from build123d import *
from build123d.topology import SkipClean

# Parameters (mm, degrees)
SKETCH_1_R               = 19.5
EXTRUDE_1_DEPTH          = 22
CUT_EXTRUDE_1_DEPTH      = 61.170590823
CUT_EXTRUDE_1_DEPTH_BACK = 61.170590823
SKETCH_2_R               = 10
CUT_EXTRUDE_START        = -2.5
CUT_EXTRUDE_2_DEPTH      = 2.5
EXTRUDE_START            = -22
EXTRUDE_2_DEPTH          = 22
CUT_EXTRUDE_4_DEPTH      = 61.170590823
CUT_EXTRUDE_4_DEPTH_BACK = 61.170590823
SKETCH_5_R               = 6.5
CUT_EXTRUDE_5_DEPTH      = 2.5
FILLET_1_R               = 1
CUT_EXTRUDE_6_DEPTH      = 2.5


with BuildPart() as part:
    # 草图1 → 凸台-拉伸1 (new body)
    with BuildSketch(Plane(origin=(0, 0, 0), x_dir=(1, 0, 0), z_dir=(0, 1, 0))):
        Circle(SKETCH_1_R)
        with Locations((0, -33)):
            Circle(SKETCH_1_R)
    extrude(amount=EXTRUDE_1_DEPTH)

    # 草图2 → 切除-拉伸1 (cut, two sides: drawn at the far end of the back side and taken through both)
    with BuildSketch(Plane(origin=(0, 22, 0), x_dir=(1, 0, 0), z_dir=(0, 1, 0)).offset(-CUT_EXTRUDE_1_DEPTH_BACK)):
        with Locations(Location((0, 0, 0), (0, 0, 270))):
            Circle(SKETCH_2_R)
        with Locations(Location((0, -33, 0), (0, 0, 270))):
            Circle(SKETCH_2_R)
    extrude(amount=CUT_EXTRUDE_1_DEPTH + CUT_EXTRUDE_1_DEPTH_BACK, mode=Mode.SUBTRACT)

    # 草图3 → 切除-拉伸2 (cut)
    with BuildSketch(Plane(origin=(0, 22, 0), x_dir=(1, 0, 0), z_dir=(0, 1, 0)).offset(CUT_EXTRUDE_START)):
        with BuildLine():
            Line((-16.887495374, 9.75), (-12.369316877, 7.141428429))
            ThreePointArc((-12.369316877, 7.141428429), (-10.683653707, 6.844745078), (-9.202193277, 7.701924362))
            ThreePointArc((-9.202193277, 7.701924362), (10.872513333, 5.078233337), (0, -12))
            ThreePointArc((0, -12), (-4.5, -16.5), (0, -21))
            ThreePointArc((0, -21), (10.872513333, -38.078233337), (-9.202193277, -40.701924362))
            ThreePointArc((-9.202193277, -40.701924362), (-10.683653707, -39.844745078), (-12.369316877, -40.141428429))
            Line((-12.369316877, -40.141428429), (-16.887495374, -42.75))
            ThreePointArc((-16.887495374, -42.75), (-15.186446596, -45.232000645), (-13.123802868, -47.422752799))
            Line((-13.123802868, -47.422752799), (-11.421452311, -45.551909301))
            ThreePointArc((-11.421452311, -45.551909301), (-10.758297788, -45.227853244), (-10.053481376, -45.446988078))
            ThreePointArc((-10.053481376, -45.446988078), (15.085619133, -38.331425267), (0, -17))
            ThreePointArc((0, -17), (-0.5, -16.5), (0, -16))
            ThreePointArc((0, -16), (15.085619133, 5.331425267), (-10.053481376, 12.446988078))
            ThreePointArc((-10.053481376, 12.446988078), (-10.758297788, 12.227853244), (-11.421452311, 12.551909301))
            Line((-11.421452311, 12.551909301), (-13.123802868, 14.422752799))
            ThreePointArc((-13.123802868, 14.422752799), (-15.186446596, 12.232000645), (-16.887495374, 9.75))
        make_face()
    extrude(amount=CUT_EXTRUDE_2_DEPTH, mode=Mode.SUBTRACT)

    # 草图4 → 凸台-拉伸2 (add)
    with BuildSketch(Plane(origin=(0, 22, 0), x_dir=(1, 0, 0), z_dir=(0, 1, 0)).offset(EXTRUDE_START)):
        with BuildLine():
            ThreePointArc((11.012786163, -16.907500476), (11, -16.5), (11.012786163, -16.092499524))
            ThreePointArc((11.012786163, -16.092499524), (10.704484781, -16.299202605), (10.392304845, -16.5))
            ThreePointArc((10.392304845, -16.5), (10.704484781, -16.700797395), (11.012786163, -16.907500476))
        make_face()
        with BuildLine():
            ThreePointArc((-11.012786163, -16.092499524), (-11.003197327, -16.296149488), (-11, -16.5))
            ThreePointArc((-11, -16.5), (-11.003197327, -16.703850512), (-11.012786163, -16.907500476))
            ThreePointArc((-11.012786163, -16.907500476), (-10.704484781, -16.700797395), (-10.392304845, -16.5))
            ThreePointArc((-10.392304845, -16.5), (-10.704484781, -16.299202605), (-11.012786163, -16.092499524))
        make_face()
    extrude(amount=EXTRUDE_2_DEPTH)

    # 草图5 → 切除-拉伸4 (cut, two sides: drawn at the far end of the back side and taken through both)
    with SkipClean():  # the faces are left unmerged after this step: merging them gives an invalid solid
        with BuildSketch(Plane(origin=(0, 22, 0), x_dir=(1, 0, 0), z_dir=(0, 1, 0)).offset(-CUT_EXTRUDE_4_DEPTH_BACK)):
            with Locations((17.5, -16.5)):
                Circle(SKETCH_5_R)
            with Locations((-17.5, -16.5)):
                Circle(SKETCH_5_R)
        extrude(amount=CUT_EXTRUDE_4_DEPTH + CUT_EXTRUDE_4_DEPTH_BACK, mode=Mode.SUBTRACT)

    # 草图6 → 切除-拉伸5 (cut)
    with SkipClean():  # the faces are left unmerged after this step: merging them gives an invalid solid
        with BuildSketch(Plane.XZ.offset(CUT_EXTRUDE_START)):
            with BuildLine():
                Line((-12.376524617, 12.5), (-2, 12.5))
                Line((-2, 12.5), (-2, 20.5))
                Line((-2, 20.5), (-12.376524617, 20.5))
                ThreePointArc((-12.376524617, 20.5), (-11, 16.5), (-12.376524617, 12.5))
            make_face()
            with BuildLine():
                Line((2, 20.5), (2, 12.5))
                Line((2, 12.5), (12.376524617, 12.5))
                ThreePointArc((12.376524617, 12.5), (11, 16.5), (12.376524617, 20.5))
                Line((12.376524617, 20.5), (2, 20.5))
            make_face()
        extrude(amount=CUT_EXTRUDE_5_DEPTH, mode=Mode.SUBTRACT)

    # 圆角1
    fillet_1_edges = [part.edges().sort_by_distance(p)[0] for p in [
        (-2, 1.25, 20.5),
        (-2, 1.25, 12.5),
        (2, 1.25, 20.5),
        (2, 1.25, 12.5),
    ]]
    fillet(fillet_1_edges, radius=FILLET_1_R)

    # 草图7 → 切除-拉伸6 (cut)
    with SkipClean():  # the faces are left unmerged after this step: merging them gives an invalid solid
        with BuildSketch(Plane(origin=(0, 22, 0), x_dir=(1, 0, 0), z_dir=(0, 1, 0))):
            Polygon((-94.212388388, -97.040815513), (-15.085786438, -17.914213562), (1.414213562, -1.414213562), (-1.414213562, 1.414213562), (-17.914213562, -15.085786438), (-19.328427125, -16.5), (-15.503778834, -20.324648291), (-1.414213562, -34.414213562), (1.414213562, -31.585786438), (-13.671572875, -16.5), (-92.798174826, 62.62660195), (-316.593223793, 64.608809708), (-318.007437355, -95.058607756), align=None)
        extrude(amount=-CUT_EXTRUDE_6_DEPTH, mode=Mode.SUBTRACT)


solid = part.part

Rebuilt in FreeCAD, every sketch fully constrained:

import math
import FreeCAD as App
import Part
import Sketcher
Q = App.Units.Quantity


def edges_at(feature, points):
    """Names of the edges that pass closest to the given points."""
    edges = feature.Shape.Edges
    near = lambda p: min(range(len(edges)), key=lambda i: edges[i].distToShape(Part.Vertex(*p))[0])
    return sorted({f"Edge{near(p) + 1}" for p in points})

doc = App.newDocument("Part")
body = doc.addObject("PartDesign::Body", "Body")

# Sketch on XZ plane
sketch1 = body.newObject("Sketcher::SketchObject", "Sketch")
sketch1.AttachmentSupport = (doc.getObject("XZ_Plane"), [""])
sketch1.MapMode = "FlatFace"
sketch1.addGeometry([
    Part.ArcOfCircle(Part.Circle(App.Vector(0, 0, 0), App.Vector(0, 0, 1), 20), math.radians(122), math.radians(418)),
    Part.ArcOfCircle(Part.Circle(App.Vector(0, 33, 0), App.Vector(0, 0, 1), 20), math.radians(-58), math.radians(238)),
], False)
sketch1.addConstraint([
    Sketcher.Constraint("Coincident", 0, 1, 1, 2),
    Sketcher.Constraint("Coincident", 1, 1, 0, 2),
    Sketcher.Constraint("Coincident", 0, 3, -1, 1),
    Sketcher.Constraint("Equal", 0, 1),
    Sketcher.Constraint("PointOnObject", 1, 3, -2),
    Sketcher.Constraint("Radius", 0, 19.5),
    Sketcher.Constraint("DistanceY", -1, 1, 1, 3, 33.0),
])
pad1 = body.newObject("PartDesign::Pad", "Pad")
pad1.Profile = sketch1
pad1.Length = 22
pad1.Reversed = True

# Sketch on XZ plane
sketch2 = body.newObject("Sketcher::SketchObject", "Sketch001")
sketch2.AttachmentSupport = (doc.getObject("XZ_Plane"), [""])
sketch2.MapMode = "FlatFace"
sketch2.AttachmentOffset = App.Placement(App.Vector(0, 0, -22), App.Rotation())
sketch2.addGeometry([
    Part.Circle(App.Vector(0, 0, 0), App.Vector(0, 0, 1), 10),
    Part.Circle(App.Vector(0, 33, 0), App.Vector(0, 0, 1), 10),
], False)
sketch2.addConstraint([
    Sketcher.Constraint("Coincident", 0, 3, -1, 1),
    Sketcher.Constraint("Equal", 0, 1),
    Sketcher.Constraint("PointOnObject", 1, 3, -2),
    Sketcher.Constraint("Diameter", 0, 20.0),
    Sketcher.Constraint("DistanceY", -1, 1, 1, 3, 33.0),
])
pocket1 = body.newObject("PartDesign::Pocket", "Pocket")
pocket1.Profile = sketch2
pocket1.Type = "ThroughAll"
pocket1.Midplane = True

# Sketch on XZ plane
sketch3 = body.newObject("Sketcher::SketchObject", "Sketch002")
sketch3.AttachmentSupport = (doc.getObject("XZ_Plane"), [""])
sketch3.MapMode = "FlatFace"
sketch3.AttachmentOffset = App.Placement(App.Vector(0, 0, -19.5), App.Rotation())
sketch3.addGeometry([
    Part.LineSegment(App.Vector(-16.9, -9.8, 0), App.Vector(-12.4, -7.1, 0)),  # 0
    Part.ArcOfCircle(Part.Circle(App.Vector(-11.1, -9.3, 0), App.Vector(0, 0, 1), 2.5), math.radians(40), math.radians(120)),  # 1
    Part.ArcOfCircle(Part.Circle(App.Vector(0, 0, 0), App.Vector(0, 0, 1), 12), math.radians(-140), math.radians(90)),  # 2
    Part.ArcOfCircle(Part.Circle(App.Vector(0, 16.5, 0), App.Vector(0, 0, 1), 4.5), math.radians(90), math.radians(270)),  # 3
    Part.ArcOfCircle(Part.Circle(App.Vector(0, 33, 0), App.Vector(0, 0, 1), 12), math.radians(-90), math.radians(140)),  # 4
    Part.ArcOfCircle(Part.Circle(App.Vector(-11.1, 42.3, 0), App.Vector(0, 0, 1), 2.5), math.radians(-120), math.radians(-40)),  # 5
    Part.LineSegment(App.Vector(-12.4, 40.1, 0), App.Vector(-16.9, 42.8, 0)),  # 6
    Part.ArcOfCircle(Part.Circle(App.Vector(0, 33, 0), App.Vector(0, 0, 1), 19.5), math.radians(132.3), math.radians(150)),  # 7
    Part.LineSegment(App.Vector(-13.1, 47.4, 0), App.Vector(-11.4, 45.6, 0)),  # 8
    Part.ArcOfCircle(Part.Circle(App.Vector(-10.7, 46.2, 0), App.Vector(0, 0, 1), 1), math.radians(-138), math.radians(-51)),  # 9
    Part.ArcOfCircle(Part.Circle(App.Vector(0, 33, 0), App.Vector(0, 0, 1), 16), math.radians(-90), math.radians(129)),  # 10
    Part.ArcOfCircle(Part.Circle(App.Vector(0, 16.5, 0), App.Vector(0, 0, 1), 0.5), math.radians(90), math.radians(270)),  # 11
    Part.ArcOfCircle(Part.Circle(App.Vector(0, 0, 0), App.Vector(0, 0, 1), 16), math.radians(-129), math.radians(90)),  # 12
    Part.ArcOfCircle(Part.Circle(App.Vector(-10.7, -13.2, 0), App.Vector(0, 0, 1), 1), math.radians(51), math.radians(138)),  # 13
    Part.LineSegment(App.Vector(-11.4, -12.6, 0), App.Vector(-13.1, -14.4, 0)),  # 14
    Part.ArcOfCircle(Part.Circle(App.Vector(0, 0, 0), App.Vector(0, 0, 1), 19.5), math.radians(-150), math.radians(-132.3)),  # 15
], False)
sketch3.addConstraint([
    Sketcher.Constraint("Tangent", 0, 2, 1, 2),
    Sketcher.Constraint("Tangent", 1, 1, 2, 1),
    Sketcher.Constraint("Tangent", 2, 2, 3, 2),
    Sketcher.Constraint("Tangent", 3, 1, 4, 1),
    Sketcher.Constraint("Tangent", 4, 2, 5, 2),
    Sketcher.Constraint("Tangent", 5, 1, 6, 1),
    Sketcher.Constraint("Coincident", 6, 2, 7, 2),
    Sketcher.Constraint("Coincident", 7, 1, 8, 1),
    Sketcher.Constraint("Tangent", 8, 2, 9, 1),
    Sketcher.Constraint("Tangent", 9, 2, 10, 2),
    Sketcher.Constraint("Tangent", 10, 1, 11, 1),
    Sketcher.Constraint("Tangent", 11, 2, 12, 2),
    Sketcher.Constraint("Tangent", 12, 1, 13, 1),
    Sketcher.Constraint("Tangent", 13, 2, 14, 1),
    Sketcher.Constraint("Coincident", 14, 2, 15, 2),
    Sketcher.Constraint("Coincident", 15, 1, 0, 1),
    Sketcher.Constraint("Coincident", 2, 3, -1, 1),
    Sketcher.Constraint("Coincident", 12, 3, -1, 1),
    Sketcher.Constraint("Coincident", 15, 3, -1, 1),
    Sketcher.Constraint("Coincident", 7, 3, 4, 3),
    Sketcher.Constraint("Coincident", 10, 3, 4, 3),
    Sketcher.Constraint("Coincident", 11, 3, 3, 3),
    Sketcher.Constraint("Equal", 2, 4),
    Sketcher.Constraint("Equal", 1, 5),
    Sketcher.Constraint("Equal", 9, 13),
    Sketcher.Constraint("Equal", 7, 15),
    Sketcher.Constraint("PointOnObject", 3, 3, -2),
    Sketcher.Constraint("PointOnObject", 4, 3, -2),
    Sketcher.Constraint("Vertical", 1, 3, 5, 3),
    Sketcher.Constraint("Vertical", 9, 3, 13, 3),
    Sketcher.Constraint("Vertical", 0, 2, 5, 1),
    Sketcher.Constraint("Vertical", 8, 2, 13, 2),
    Sketcher.Constraint("Radius", 2, 12.0),
    Sketcher.Constraint("Radius", 9, 1.0),
    Sketcher.Constraint("Radius", 10, 16.0),
    Sketcher.Constraint("Radius", 1, 2.5),
    Sketcher.Constraint("Radius", 3, 4.5),
    Sketcher.Constraint("Radius", 7, 19.5),
    Sketcher.Constraint("Angle", 0, Q("30 deg")),
    Sketcher.Constraint("DistanceY", -1, 1, 6, 2, 42.75),
    Sketcher.Constraint("DistanceY", 13, 3, 1, 1, 5.523),
    Sketcher.Constraint("DistanceY", -1, 1, 8, 2, 45.551909),
])
pocket2 = body.newObject("PartDesign::Pocket", "Pocket001")
pocket2.Profile = sketch3
pocket2.Length = 2.5

# Sketch on XZ plane
sketch4 = body.newObject("Sketcher::SketchObject", "Sketch003")
sketch4.AttachmentSupport = (doc.getObject("XZ_Plane"), [""])
sketch4.MapMode = "FlatFace"
sketch4.addGeometry([
    Part.ArcOfCircle(Part.Circle(App.Vector(17.5, 16.5, 0), App.Vector(0, 0, 1), 6.5), math.radians(176.41), math.radians(183.59)),  # 0
    Part.ArcOfCircle(Part.Circle(App.Vector(0, 0, 0), App.Vector(0, 0, 1), 19.5), math.radians(55.61), math.radians(57.8)),  # 1
    Part.ArcOfCircle(Part.Circle(App.Vector(0, 33, 0), App.Vector(0, 0, 1), 19.5), math.radians(-57.8), math.radians(-55.61)),  # 2
    Part.ArcOfCircle(Part.Circle(App.Vector(-17.5, 16.5, 0), App.Vector(0, 0, 1), 6.5), math.radians(-3.59), math.radians(0)),  # 3
    Part.ArcOfCircle(Part.Circle(App.Vector(-17.5, 16.5, 0), App.Vector(0, 0, 1), 6.5), math.radians(0), math.radians(3.59)),  # 4
    Part.ArcOfCircle(Part.Circle(App.Vector(0, 33, 0), App.Vector(0, 0, 1), 19.5), math.radians(-124.39), math.radians(-122.2)),  # 5
    Part.ArcOfCircle(Part.Circle(App.Vector(0, 0, 0), App.Vector(0, 0, 1), 19.5), math.radians(122.2), math.radians(124.39)),  # 6
], False)
sketch4.addConstraint([
    Sketcher.Constraint("Coincident", 0, 2, 1, 1),
    Sketcher.Constraint("Coincident", 1, 2, 2, 1),
    Sketcher.Constraint("Coincident", 2, 2, 0, 1),
    Sketcher.Constraint("Tangent", 3, 2, 4, 1),
    Sketcher.Constraint("Coincident", 4, 2, 5, 1),
    Sketcher.Constraint("Coincident", 5, 2, 6, 1),
    Sketcher.Constraint("Coincident", 6, 2, 3, 1),
    Sketcher.Constraint("Coincident", 1, 3, -1, 1),
    Sketcher.Constraint("Coincident", 6, 3, -1, 1),
    Sketcher.Constraint("Coincident", 5, 3, 2, 3),
    Sketcher.Constraint("Equal", 1, 2),
    Sketcher.Constraint("Equal", 0, 3),
    Sketcher.Constraint("Equal", 3, 4),
    Sketcher.Constraint("Equal", 2, 5),
    Sketcher.Constraint("Equal", 5, 6),
    Sketcher.Constraint("Symmetric", 0, 3, 3, 3, -2),
    Sketcher.Constraint("PointOnObject", 2, 3, -2),
    Sketcher.Constraint("Horizontal", 4, 3, 1, 2),
    Sketcher.Constraint("Horizontal", 1, 2, 3, 2),
    Sketcher.Constraint("Radius", 0, 6.5),
    Sketcher.Constraint("Radius", 1, 19.500002),
    Sketcher.Constraint("DistanceY", -1, 1, 2, 3, 33.000001),
    Sketcher.Constraint("DistanceX", 3, 2, -1, 1, 11.0),
])
pad2 = body.newObject("PartDesign::Pad", "Pad001")
pad2.Profile = sketch4
pad2.Length = 22
pad2.Reversed = True

# Sketch on XZ plane
sketch5 = body.newObject("Sketcher::SketchObject", "Sketch004")
sketch5.AttachmentSupport = (doc.getObject("XZ_Plane"), [""])
sketch5.MapMode = "FlatFace"
sketch5.AttachmentOffset = App.Placement(App.Vector(0, 0, -22), App.Rotation())
sketch5.addGeometry([
    Part.Circle(App.Vector(18, 16, 0), App.Vector(0, 0, 1), 6),
    Part.Circle(App.Vector(-18, 16, 0), App.Vector(0, 0, 1), 6),
], False)
sketch5.addConstraint([
    Sketcher.Constraint("Equal", 0, 1),
    Sketcher.Constraint("Symmetric", 0, 3, 1, 3, -2),
    Sketcher.Constraint("Diameter", 0, 13.0),
    Sketcher.Constraint("DistanceX", 1, 3, 0, 3, 35.0),
    Sketcher.Constraint("DistanceY", -1, 1, 0, 3, 16.5),
])
pocket3 = body.newObject("PartDesign::Pocket", "Pocket002")
pocket3.Profile = sketch5
pocket3.Type = "ThroughAll"
pocket3.Midplane = True

# Sketch on XZ plane
sketch6 = body.newObject("Sketcher::SketchObject", "Sketch005")
sketch6.AttachmentSupport = (doc.getObject("XZ_Plane"), [""])
sketch6.MapMode = "FlatFace"
sketch6.AttachmentOffset = App.Placement(App.Vector(0, 0, -2.5), App.Rotation())
sketch6.addGeometry([
    Part.LineSegment(App.Vector(-12, 12, 0), App.Vector(-2, 12, 0)),  # 0
    Part.LineSegment(App.Vector(-2, 12, 0), App.Vector(-2, 20, 0)),  # 1
    Part.LineSegment(App.Vector(-2, 20, 0), App.Vector(-12, 20, 0)),  # 2
    Part.ArcOfCircle(Part.Circle(App.Vector(-18, 16, 0), App.Vector(0, 0, 1), 6), math.radians(-38), math.radians(38)),  # 3
    Part.LineSegment(App.Vector(2, 20, 0), App.Vector(2, 12, 0)),  # 4
    Part.LineSegment(App.Vector(2, 12, 0), App.Vector(12, 12, 0)),  # 5
    Part.ArcOfCircle(Part.Circle(App.Vector(18, 16, 0), App.Vector(0, 0, 1), 6), math.radians(142), math.radians(218)),  # 6
    Part.LineSegment(App.Vector(12, 20, 0), App.Vector(2, 20, 0)),  # 7
], False)
sketch6.addConstraint([
    Sketcher.Constraint("Coincident", 0, 2, 1, 1),
    Sketcher.Constraint("Coincident", 1, 2, 2, 1),
    Sketcher.Constraint("Coincident", 2, 2, 3, 2),
    Sketcher.Constraint("Coincident", 3, 1, 0, 1),
    Sketcher.Constraint("Coincident", 4, 2, 5, 1),
    Sketcher.Constraint("Coincident", 5, 2, 6, 2),
    Sketcher.Constraint("Coincident", 6, 1, 7, 1),
    Sketcher.Constraint("Coincident", 7, 2, 4, 1),
    Sketcher.Constraint("Horizontal", 0),
    Sketcher.Constraint("Vertical", 1),
    Sketcher.Constraint("Horizontal", 2),
    Sketcher.Constraint("Vertical", 4),
    Sketcher.Constraint("Horizontal", 5),
    Sketcher.Constraint("Horizontal", 7),
    Sketcher.Constraint("Equal", 3, 6),
    Sketcher.Constraint("Symmetric", 3, 3, 6, 3, -2),
    Sketcher.Constraint("Symmetric", 0, 2, 4, 2, -2),
    Sketcher.Constraint("Horizontal", 2, 2, 6, 1),
    Sketcher.Constraint("Vertical", 2, 2, 3, 1),
    Sketcher.Constraint("Radius", 3, 6.5),
    Sketcher.Constraint("DistanceY", 1, 1, 1, 2, 8.0),
    Sketcher.Constraint("DistanceX", 0, 2, -1, 1, 2.0),
    Sketcher.Constraint("DistanceX", 3, 3, 6, 3, 35.0),
    Sketcher.Constraint("DistanceY", -1, 1, 3, 3, 16.5),
])
pocket4 = body.newObject("PartDesign::Pocket", "Pocket003")
pocket4.Profile = sketch6
pocket4.Length = 2.5
pocket4.Reversed = True
doc.recompute()

fillet = body.newObject("PartDesign::Fillet", "Fillet")
fillet.Base = (pocket4, edges_at(pocket4, [
    (-2, 1.25, 20.5),
    (-2, 1.25, 12.5),
    (2, 1.25, 20.5),
    (2, 1.25, 12.5),
]))
fillet.Radius = 1

# Sketch on XZ plane
sketch7 = body.newObject("Sketcher::SketchObject", "Sketch006")
sketch7.AttachmentSupport = (doc.getObject("XZ_Plane"), [""])
sketch7.MapMode = "FlatFace"
sketch7.AttachmentOffset = App.Placement(App.Vector(0, 0, -22), App.Rotation())
sketch7.addGeometry([
    Part.LineSegment(App.Vector(-94.212388, 97.040816, 0), App.Vector(-15.085786, 17.914214, 0)),  # 0
    Part.LineSegment(App.Vector(-15.085786, 17.914214, 0), App.Vector(1.414214, 1.414214, 0)),  # 1
    Part.LineSegment(App.Vector(1.414214, 1.414214, 0), App.Vector(-1.414214, -1.414214, 0)),  # 2
    Part.LineSegment(App.Vector(-1.414214, -1.414214, 0), App.Vector(-17.914214, 15.085786, 0)),  # 3
    Part.LineSegment(App.Vector(-17.914214, 15.085786, 0), App.Vector(-19.328427, 16.5, 0)),  # 4
    Part.LineSegment(App.Vector(-19.328427, 16.5, 0), App.Vector(-15.503779, 20.324648, 0)),  # 5
    Part.LineSegment(App.Vector(-15.503779, 20.324648, 0), App.Vector(-1.414214, 34.414214, 0)),  # 6
    Part.LineSegment(App.Vector(-1.414214, 34.414214, 0), App.Vector(1.414214, 31.585786, 0)),  # 7
    Part.LineSegment(App.Vector(1.414214, 31.585786, 0), App.Vector(-13.671573, 16.5, 0)),  # 8
    Part.LineSegment(App.Vector(-13.671573, 16.5, 0), App.Vector(-92.798175, -62.626602, 0)),  # 9
    Part.LineSegment(App.Vector(-92.798175, -62.626602, 0), App.Vector(-316.593224, -64.60881, 0)),  # 10
    Part.LineSegment(App.Vector(-316.593224, -64.60881, 0), App.Vector(-318.007437, 95.058608, 0)),  # 11
    Part.LineSegment(App.Vector(-318.007437, 95.058608, 0), App.Vector(-94.212388, 97.040816, 0)),  # 12
], False)
sketch7.addConstraint([
    Sketcher.Constraint("Coincident", 0, 2, 1, 1),
    Sketcher.Constraint("Coincident", 1, 2, 2, 1),
    Sketcher.Constraint("Coincident", 2, 2, 3, 1),
    Sketcher.Constraint("Coincident", 3, 2, 4, 1),
    Sketcher.Constraint("Coincident", 4, 2, 5, 1),
    Sketcher.Constraint("Coincident", 5, 2, 6, 1),
    Sketcher.Constraint("Coincident", 6, 2, 7, 1),
    Sketcher.Constraint("Coincident", 7, 2, 8, 1),
    Sketcher.Constraint("Coincident", 8, 2, 9, 1),
    Sketcher.Constraint("Coincident", 9, 2, 10, 1),
    Sketcher.Constraint("Coincident", 10, 2, 11, 1),
    Sketcher.Constraint("Coincident", 11, 2, 12, 1),
    Sketcher.Constraint("Coincident", 12, 2, 0, 1),
    Sketcher.Constraint("Symmetric", 1, 2, 2, 2, -1, 1),
    Sketcher.Constraint("Parallel", 0, 1),
    Sketcher.Constraint("Perpendicular", 1, 2),
    Sketcher.Constraint("Perpendicular", 2, 3),
    Sketcher.Constraint("Parallel", 3, 4),
    Sketcher.Constraint("Perpendicular", 4, 5),
    Sketcher.Constraint("Parallel", 5, 6),
    Sketcher.Constraint("Perpendicular", 6, 7),
    Sketcher.Constraint("Perpendicular", 7, 8),
    Sketcher.Constraint("Parallel", 8, 9),
    Sketcher.Constraint("Perpendicular", 10, 11),
    Sketcher.Constraint("Perpendicular", 11, 12),
    Sketcher.Constraint("Horizontal", 4, 2, 8, 2),
    Sketcher.Constraint("Vertical", 2, 2, 6, 2),
    Sketcher.Constraint("Vertical", 1, 2, 7, 2),
    Sketcher.Constraint("Equal", 1, 3),
    Sketcher.Constraint("Equal", 2, 7),
    Sketcher.Constraint("Equal", 0, 9),
    Sketcher.Constraint("Equal", 10, 12),
    Sketcher.Constraint("Distance", 2, 4.0),
    Sketcher.Constraint("Distance", 4, 2.0),
    Sketcher.Constraint("DistanceY", 1, 2, 6, 2, 33.0),
    Sketcher.Constraint("DistanceY", 9, 2, -1, 1, 62.626602),
    Sketcher.Constraint("Distance", 5, 5.408869),
    Sketcher.Constraint("DistanceY", 10, 2, -1, 1, 64.60881),
])
pocket5 = body.newObject("PartDesign::Pocket", "Pocket004")
pocket5.Profile = sketch7
pocket5.Length = 2.5
pocket5.Reversed = True

doc.recompute()
